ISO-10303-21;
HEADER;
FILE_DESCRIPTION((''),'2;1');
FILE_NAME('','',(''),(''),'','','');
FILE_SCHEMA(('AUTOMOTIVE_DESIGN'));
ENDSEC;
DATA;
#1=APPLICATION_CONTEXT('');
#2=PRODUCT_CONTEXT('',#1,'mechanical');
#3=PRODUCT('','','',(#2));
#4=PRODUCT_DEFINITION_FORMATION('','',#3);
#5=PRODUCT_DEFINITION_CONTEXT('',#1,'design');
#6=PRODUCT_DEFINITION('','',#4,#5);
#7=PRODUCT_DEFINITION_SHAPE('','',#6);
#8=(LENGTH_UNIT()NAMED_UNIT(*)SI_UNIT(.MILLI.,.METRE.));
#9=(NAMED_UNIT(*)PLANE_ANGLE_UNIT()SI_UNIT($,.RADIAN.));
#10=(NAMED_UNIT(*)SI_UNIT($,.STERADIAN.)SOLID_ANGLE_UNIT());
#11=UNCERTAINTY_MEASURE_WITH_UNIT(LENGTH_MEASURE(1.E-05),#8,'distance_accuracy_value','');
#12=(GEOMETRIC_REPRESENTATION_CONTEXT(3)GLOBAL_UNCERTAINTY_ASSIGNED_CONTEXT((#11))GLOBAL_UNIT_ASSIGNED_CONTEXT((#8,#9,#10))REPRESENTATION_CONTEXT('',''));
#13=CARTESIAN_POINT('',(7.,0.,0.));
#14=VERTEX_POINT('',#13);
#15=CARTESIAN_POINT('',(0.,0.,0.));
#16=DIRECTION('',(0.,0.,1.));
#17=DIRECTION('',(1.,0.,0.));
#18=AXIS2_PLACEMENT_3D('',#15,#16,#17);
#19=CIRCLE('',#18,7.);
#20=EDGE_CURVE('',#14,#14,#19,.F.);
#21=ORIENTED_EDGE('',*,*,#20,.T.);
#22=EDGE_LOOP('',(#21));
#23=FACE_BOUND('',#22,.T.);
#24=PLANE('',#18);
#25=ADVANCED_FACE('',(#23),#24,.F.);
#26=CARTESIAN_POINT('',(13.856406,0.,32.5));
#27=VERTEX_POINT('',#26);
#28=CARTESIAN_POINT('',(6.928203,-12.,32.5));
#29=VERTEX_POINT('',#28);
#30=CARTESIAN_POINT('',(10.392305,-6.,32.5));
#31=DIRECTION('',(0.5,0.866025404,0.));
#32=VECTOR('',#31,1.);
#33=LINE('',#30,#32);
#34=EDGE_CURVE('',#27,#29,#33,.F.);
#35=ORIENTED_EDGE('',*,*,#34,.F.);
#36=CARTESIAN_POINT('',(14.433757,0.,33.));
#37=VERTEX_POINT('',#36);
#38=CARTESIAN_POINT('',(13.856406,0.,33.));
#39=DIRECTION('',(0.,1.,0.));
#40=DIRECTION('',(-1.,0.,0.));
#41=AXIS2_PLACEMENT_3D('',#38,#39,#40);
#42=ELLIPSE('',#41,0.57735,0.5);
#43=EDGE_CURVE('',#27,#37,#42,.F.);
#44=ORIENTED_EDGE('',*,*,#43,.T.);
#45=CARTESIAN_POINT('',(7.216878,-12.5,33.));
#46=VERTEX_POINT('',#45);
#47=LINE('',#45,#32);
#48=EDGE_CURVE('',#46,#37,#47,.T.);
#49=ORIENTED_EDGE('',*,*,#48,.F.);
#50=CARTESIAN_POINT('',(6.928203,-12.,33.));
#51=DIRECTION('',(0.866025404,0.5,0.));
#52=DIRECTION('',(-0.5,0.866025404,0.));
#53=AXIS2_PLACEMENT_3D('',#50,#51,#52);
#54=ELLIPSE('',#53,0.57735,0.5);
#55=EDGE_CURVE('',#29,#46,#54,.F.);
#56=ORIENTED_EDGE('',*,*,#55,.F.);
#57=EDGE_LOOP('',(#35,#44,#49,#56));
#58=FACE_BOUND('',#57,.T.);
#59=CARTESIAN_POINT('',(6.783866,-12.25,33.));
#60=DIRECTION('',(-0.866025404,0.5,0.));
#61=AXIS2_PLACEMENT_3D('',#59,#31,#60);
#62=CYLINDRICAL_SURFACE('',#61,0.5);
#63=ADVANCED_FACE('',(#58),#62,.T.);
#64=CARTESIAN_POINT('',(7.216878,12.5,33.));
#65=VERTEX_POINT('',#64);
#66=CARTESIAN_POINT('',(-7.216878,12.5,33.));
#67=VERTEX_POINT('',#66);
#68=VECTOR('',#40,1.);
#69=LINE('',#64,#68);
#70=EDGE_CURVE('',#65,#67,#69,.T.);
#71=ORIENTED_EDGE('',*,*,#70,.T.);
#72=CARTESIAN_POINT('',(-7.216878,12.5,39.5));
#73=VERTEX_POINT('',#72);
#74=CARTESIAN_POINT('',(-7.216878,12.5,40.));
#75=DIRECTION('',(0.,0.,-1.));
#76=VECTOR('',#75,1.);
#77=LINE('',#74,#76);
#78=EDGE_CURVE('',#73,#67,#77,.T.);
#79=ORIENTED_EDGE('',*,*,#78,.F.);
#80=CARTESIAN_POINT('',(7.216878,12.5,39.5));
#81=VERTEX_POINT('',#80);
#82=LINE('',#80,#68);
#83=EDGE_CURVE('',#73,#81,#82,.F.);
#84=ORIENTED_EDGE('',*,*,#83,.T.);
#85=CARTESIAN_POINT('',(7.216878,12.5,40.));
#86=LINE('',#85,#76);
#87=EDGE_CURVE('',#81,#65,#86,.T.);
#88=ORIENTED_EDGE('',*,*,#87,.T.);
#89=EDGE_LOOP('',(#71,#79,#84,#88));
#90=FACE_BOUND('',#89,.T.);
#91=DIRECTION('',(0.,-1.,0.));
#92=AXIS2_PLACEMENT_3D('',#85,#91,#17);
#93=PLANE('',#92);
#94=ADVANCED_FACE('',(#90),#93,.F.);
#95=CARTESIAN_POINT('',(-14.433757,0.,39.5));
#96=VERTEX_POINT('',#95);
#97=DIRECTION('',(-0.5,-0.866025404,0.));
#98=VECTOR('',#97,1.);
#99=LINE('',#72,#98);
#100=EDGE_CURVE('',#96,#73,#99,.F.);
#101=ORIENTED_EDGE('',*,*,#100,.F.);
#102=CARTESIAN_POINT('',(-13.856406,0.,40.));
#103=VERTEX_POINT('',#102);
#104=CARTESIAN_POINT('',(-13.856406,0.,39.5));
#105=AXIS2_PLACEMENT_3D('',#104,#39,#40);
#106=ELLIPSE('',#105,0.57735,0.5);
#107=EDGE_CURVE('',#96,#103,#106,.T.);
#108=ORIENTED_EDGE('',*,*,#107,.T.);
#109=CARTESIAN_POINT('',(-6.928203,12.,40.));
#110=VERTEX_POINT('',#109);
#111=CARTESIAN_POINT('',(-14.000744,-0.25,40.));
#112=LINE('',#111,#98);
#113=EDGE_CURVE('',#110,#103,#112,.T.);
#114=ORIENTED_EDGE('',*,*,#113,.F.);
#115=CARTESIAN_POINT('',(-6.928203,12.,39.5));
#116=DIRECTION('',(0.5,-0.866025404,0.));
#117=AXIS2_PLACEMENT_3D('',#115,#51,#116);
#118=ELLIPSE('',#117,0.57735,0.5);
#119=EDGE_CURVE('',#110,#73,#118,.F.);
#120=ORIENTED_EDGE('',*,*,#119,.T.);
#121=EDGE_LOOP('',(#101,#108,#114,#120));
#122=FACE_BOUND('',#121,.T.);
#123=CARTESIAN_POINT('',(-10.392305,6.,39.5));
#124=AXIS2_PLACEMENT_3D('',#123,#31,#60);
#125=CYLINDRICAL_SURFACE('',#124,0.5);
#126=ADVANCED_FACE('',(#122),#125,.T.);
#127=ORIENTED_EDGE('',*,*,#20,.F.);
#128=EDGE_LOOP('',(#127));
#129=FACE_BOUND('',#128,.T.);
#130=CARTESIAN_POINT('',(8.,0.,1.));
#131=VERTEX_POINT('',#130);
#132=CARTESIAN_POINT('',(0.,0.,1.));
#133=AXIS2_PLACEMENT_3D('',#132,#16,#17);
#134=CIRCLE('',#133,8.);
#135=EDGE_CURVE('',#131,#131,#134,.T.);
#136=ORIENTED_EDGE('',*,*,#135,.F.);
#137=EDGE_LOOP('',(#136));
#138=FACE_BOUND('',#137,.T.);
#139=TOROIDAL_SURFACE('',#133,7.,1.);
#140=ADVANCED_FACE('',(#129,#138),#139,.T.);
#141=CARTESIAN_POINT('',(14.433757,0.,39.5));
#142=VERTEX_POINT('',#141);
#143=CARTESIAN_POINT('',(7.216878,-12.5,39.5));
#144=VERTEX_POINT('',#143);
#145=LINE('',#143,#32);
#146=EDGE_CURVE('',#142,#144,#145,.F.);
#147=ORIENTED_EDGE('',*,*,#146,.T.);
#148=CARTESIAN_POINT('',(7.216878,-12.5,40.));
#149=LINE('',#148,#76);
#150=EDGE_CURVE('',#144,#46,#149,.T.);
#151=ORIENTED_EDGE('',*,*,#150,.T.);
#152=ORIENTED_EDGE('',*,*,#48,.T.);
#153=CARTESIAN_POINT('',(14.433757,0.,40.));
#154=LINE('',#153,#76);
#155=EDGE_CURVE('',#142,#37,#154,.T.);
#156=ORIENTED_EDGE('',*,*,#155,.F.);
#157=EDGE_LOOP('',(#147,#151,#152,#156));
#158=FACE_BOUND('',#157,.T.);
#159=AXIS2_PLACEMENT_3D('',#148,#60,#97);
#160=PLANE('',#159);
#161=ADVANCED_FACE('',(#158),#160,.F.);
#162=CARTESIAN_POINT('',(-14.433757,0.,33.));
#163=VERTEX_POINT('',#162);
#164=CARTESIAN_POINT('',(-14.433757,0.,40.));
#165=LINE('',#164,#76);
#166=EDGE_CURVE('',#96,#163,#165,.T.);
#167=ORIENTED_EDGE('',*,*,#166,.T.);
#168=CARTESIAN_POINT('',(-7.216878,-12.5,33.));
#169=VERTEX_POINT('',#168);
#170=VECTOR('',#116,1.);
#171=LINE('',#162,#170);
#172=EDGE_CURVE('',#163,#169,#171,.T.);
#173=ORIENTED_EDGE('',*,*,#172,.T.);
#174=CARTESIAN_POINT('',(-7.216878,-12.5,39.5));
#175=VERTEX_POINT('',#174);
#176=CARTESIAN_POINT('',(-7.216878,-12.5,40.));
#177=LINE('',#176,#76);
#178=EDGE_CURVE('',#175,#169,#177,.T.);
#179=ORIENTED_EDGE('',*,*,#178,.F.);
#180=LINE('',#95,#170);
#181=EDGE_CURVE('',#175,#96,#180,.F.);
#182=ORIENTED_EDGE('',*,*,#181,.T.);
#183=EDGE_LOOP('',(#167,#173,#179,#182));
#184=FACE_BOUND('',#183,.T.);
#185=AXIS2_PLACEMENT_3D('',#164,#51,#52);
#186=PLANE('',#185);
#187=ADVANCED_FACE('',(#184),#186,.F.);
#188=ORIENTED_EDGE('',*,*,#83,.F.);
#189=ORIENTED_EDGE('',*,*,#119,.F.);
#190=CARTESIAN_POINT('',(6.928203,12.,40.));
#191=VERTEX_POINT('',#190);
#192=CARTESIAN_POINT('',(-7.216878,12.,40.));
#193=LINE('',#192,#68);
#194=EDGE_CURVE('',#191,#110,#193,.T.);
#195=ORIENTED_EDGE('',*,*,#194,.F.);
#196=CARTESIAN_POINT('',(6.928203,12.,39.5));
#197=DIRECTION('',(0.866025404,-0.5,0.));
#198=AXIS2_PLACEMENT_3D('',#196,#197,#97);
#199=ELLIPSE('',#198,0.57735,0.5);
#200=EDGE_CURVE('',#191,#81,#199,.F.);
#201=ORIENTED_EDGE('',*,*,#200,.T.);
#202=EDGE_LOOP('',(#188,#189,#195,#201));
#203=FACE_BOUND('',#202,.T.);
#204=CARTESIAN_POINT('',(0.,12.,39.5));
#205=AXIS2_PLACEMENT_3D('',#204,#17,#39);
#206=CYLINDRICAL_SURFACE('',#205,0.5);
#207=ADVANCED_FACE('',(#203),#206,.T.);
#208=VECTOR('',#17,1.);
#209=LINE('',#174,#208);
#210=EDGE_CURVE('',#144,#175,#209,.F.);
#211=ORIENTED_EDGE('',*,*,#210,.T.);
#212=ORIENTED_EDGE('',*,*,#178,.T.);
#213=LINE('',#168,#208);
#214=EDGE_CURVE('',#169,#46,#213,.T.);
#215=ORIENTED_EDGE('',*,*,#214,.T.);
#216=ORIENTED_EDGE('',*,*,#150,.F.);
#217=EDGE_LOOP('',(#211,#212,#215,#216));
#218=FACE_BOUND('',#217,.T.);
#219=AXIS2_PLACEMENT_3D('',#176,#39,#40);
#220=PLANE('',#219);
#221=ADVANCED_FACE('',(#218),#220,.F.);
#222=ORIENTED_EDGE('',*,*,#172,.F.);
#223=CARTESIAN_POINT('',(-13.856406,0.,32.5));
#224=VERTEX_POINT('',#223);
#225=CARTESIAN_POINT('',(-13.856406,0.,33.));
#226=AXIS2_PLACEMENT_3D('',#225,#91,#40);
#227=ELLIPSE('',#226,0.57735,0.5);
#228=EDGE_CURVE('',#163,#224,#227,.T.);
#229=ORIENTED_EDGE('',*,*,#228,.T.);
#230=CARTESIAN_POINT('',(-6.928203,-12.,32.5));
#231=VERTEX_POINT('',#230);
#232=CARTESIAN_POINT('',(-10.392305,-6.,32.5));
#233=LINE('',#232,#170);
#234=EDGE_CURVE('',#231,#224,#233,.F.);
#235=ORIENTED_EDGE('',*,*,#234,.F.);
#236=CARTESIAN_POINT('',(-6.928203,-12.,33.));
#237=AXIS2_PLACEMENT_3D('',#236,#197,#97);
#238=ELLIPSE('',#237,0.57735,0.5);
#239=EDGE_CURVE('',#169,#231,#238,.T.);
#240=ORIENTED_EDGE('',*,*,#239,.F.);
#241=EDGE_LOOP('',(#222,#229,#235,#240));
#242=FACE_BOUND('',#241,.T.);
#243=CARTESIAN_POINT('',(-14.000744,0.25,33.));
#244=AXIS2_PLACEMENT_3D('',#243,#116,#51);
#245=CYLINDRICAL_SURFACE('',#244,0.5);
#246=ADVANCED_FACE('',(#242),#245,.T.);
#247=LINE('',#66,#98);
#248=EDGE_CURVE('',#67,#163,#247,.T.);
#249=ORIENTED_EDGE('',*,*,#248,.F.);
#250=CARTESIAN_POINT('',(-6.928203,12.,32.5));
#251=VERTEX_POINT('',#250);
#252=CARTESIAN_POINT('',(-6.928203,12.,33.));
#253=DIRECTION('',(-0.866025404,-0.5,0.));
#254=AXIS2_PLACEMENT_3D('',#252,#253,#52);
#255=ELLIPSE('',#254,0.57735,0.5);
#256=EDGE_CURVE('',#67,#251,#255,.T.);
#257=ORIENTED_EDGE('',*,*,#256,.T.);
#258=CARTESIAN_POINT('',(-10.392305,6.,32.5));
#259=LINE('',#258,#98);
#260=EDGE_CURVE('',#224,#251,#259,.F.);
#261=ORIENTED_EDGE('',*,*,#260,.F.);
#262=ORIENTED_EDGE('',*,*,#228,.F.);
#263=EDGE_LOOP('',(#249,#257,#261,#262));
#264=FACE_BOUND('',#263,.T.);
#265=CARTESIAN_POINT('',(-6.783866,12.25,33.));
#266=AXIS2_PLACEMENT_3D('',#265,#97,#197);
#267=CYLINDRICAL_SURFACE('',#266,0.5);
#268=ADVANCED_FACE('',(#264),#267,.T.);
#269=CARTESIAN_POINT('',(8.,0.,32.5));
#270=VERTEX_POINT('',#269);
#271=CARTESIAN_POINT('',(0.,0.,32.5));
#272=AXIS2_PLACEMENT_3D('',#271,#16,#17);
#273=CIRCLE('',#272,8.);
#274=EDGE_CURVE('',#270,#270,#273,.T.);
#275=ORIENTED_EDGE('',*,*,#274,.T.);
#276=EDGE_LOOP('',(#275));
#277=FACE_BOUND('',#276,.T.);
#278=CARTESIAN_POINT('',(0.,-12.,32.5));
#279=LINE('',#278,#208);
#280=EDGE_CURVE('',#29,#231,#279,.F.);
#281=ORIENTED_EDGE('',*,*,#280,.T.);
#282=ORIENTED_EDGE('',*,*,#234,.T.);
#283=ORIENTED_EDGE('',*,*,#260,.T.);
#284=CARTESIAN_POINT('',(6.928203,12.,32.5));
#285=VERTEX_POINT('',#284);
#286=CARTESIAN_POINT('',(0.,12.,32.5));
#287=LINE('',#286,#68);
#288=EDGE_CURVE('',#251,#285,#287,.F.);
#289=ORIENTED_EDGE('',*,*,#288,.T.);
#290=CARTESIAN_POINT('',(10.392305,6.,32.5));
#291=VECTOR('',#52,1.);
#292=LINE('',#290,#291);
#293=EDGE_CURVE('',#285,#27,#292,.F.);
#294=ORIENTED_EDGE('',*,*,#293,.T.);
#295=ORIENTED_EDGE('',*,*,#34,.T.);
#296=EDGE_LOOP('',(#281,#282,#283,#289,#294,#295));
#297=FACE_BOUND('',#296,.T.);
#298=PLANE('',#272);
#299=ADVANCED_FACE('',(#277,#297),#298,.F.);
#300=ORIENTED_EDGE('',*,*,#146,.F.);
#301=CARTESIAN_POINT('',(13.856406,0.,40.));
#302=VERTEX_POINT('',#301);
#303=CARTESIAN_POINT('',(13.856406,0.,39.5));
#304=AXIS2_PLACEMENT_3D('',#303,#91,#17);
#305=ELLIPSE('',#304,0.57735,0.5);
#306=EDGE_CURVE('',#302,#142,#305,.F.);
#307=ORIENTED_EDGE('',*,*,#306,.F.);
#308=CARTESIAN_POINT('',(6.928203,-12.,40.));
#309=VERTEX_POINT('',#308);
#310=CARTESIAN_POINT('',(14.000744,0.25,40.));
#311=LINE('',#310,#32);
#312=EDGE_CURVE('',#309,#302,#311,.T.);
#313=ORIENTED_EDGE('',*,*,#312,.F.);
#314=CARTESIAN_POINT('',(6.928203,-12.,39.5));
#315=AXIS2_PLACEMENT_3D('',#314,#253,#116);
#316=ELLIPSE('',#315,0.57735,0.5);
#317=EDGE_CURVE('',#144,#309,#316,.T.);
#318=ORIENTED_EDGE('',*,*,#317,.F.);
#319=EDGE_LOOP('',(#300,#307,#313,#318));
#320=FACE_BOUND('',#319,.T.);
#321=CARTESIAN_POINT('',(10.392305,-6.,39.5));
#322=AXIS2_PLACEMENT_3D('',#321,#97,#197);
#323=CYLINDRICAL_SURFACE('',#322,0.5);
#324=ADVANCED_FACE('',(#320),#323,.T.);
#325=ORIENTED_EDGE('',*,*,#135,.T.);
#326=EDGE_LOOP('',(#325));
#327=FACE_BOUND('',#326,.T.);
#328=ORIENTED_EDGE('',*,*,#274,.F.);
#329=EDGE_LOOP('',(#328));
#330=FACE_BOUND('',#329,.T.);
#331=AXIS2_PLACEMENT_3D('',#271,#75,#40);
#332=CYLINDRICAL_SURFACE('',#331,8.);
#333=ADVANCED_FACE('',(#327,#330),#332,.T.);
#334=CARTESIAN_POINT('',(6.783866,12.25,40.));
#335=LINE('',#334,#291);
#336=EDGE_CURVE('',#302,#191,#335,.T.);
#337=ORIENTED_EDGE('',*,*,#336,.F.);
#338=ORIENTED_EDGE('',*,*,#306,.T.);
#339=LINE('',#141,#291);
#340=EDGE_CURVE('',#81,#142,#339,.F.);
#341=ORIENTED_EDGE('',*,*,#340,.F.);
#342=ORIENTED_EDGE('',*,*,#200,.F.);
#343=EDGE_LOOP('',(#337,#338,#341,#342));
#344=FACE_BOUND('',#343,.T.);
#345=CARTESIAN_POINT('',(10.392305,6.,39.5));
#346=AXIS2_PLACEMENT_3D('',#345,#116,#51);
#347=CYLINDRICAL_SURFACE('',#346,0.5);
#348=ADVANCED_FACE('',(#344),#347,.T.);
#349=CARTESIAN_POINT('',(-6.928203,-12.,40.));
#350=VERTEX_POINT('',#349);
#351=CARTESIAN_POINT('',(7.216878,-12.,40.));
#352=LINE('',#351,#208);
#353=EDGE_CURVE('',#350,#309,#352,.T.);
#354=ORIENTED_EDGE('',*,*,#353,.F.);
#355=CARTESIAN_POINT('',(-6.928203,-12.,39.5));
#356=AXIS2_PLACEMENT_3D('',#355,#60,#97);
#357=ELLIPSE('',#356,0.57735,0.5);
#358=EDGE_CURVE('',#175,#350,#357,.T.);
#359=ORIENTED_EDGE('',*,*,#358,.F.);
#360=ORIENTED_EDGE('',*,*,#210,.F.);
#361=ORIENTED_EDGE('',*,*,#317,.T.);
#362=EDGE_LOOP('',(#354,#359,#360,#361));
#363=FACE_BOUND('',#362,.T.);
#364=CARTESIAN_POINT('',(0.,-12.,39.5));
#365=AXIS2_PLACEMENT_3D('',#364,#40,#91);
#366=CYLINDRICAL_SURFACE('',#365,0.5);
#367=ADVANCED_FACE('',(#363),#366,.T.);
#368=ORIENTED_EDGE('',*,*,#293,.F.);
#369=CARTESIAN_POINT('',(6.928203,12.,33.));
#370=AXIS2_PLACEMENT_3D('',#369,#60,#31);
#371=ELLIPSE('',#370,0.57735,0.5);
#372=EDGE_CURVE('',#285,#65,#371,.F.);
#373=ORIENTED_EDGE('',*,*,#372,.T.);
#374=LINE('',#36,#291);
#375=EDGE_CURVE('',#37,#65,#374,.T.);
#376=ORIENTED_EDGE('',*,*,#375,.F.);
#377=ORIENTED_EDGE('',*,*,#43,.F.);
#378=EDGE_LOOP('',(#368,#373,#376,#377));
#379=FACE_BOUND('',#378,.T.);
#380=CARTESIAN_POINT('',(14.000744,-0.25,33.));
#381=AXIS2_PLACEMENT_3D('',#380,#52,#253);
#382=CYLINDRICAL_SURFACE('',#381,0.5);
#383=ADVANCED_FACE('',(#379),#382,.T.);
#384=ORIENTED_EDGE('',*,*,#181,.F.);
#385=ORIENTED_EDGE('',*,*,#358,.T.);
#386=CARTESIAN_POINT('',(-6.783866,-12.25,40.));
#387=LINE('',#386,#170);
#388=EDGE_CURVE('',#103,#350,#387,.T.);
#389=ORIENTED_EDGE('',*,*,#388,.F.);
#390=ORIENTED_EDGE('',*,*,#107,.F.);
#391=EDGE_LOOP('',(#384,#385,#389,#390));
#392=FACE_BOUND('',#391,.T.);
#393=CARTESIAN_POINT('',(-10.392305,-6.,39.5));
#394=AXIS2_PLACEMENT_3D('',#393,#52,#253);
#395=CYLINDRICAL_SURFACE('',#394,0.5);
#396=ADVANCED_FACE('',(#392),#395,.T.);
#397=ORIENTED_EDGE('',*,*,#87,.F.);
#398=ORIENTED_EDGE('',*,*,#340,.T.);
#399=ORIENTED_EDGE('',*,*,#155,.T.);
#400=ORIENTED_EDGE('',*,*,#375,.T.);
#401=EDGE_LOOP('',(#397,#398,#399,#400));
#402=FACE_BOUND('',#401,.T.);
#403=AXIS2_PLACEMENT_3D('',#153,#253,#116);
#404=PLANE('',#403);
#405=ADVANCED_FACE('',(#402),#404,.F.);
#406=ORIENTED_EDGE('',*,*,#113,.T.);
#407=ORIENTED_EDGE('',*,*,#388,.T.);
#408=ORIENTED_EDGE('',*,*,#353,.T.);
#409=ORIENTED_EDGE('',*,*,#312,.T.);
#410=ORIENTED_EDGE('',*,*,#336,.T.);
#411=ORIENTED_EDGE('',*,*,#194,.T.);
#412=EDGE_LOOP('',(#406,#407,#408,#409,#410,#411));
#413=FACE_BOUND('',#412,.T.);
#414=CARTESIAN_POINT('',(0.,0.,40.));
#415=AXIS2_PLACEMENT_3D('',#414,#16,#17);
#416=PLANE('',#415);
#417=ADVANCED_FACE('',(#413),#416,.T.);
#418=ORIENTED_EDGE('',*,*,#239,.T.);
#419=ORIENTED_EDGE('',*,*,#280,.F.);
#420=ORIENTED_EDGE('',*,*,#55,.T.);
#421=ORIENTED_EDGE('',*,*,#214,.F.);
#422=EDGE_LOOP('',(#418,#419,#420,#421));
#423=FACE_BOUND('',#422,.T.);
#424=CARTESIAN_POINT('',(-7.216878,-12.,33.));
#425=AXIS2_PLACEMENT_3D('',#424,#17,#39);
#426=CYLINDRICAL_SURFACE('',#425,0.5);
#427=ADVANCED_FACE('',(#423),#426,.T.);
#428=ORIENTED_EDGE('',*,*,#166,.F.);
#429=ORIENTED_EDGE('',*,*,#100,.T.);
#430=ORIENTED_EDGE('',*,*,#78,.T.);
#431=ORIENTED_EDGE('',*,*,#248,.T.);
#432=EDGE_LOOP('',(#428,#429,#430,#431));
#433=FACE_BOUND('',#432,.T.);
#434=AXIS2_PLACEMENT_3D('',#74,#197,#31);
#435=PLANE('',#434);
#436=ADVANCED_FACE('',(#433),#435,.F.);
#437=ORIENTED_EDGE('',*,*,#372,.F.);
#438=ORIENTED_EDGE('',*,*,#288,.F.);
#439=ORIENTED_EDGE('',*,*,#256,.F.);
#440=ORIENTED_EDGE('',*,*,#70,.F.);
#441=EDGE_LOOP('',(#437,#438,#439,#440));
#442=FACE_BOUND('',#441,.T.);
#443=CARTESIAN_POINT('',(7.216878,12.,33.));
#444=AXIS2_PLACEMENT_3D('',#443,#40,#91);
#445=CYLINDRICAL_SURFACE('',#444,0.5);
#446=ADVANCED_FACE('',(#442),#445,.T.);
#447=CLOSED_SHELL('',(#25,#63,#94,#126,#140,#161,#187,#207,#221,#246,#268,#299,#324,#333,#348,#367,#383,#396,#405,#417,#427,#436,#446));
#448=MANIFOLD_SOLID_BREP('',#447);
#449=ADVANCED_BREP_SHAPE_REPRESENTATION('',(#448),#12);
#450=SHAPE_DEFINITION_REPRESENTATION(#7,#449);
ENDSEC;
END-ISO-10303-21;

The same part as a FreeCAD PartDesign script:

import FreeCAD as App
import Part
import Sketcher
from FreeCAD import Vector
Q = App.Units.Quantity


def edges_at(feature, points):
    """Names of the edges that pass closest to the given points."""
    edges = feature.Shape.Edges
    near = lambda p: min(range(len(edges)), key=lambda i: edges[i].distToShape(Part.Vertex(*p))[0])
    return sorted({f"Edge{near(p) + 1}" for p in points})

doc = App.newDocument("Part")
body = doc.addObject("PartDesign::Body", "Body")

# Sketch on XY plane
sketch1 = doc.addObject("Sketcher::SketchObject", "Sketch")
body.addObject(sketch1)
sketch1.AttachmentSupport = (doc.XY_Plane, [""])
sketch1.MapMode = "FlatFace"
sketch1.addGeometry(Part.Circle(Vector(0, 0, 0), Vector(0, 0, 1), 8), False)
sketch1.addConstraint(Sketcher.Constraint("Coincident", 0, 3, -1, 1))
sketch1.addConstraint(Sketcher.Constraint("Diameter", 0, Q("16 mm")))
pad1 = doc.addObject("PartDesign::Pad", "Pad")
body.addObject(pad1)
pad1.Profile = sketch1
pad1.Length = 32.5

# Sketch on XY plane
sketch2 = doc.addObject("Sketcher::SketchObject", "Sketch001")
body.addObject(sketch2)
sketch2.AttachmentSupport = (doc.XY_Plane, [""])
sketch2.MapMode = "FlatFace"
sketch2.AttachmentOffset = App.Placement(Vector(0, 0, 32.5), App.Rotation())
sketch2.addGeometry(Part.LineSegment(Vector(7, -12, 0), Vector(14, 0, 0)), False)
sketch2.addGeometry(Part.LineSegment(Vector(14, 0, 0), Vector(7, 12, 0)), False)
sketch2.addGeometry(Part.LineSegment(Vector(7, 12, 0), Vector(-7, 12, 0)), False)
sketch2.addGeometry(Part.LineSegment(Vector(-7, 12, 0), Vector(-14, 0, 0)), False)
sketch2.addGeometry(Part.LineSegment(Vector(-14, 0, 0), Vector(-7, -12, 0)), False)
sketch2.addGeometry(Part.LineSegment(Vector(-7, -12, 0), Vector(7, -12, 0)), False)
sketch2.addConstraint(Sketcher.Constraint("Coincident", 0, 2, 1, 1))
sketch2.addConstraint(Sketcher.Constraint("Coincident", 1, 2, 2, 1))
sketch2.addConstraint(Sketcher.Constraint("Coincident", 2, 2, 3, 1))
sketch2.addConstraint(Sketcher.Constraint("Coincident", 3, 2, 4, 1))
sketch2.addConstraint(Sketcher.Constraint("Coincident", 4, 2, 5, 1))
sketch2.addConstraint(Sketcher.Constraint("Coincident", 5, 2, 0, 1))
sketch2.addConstraint(Sketcher.Constraint("Horizontal", 2))
sketch2.addConstraint(Sketcher.Constraint("Horizontal", 5))
sketch2.addConstraint(Sketcher.Constraint("Symmetric", 0, 2, 3, 2, -1, 1))
sketch2.addConstraint(Sketcher.Constraint("Symmetric", 1, 2, 4, 2, -1, 1))
sketch2.addConstraint(Sketcher.Constraint("PointOnObject", 0, 2, -1))
sketch2.addConstraint(Sketcher.Constraint("Parallel", 0, 3))
sketch2.addConstraint(Sketcher.Constraint("Vertical", 2, 2, 4, 2))
sketch2.addConstraint(Sketcher.Constraint("Angle", 0, Q("60 deg")))
sketch2.addConstraint(Sketcher.Constraint("DistanceY", 4, 2, 2, 2, Q("25 mm")))
sketch2.addConstraint(Sketcher.Constraint("DistanceX", 2, 2, 2, 1, Q("14.433757 mm")))
pad2 = doc.addObject("PartDesign::Pad", "Pad001")
body.addObject(pad2)
pad2.Profile = sketch2
pad2.Length = 7.5
doc.recompute()

fillet = doc.addObject("PartDesign::Fillet", "Fillet")
body.addObject(fillet)
fillet.Base = (pad2, edges_at(pad2, [(-8, 0, 0)]))
fillet.Radius = 1
doc.recompute()

fillet2 = doc.addObject("PartDesign::Fillet", "Fillet001")
body.addObject(fillet2)
fillet2.Base = (fillet, edges_at(fillet, [
    (0, -12.5, 32.5),
    (10.825, -6.25, 32.5),
    (10.825, 6.25, 32.5),
    (0, 12.5, 32.5),
    (-10.825, 6.25, 32.5),
    (-10.825, -6.25, 32.5),
    (0, -12.5, 40),
    (10.825, -6.25, 40),
    (10.825, 6.25, 40),
    (0, 12.5, 40),
    (-10.825, 6.25, 40),
    (-10.825, -6.25, 40),
]))
fillet2.Radius = 0.5

doc.recompute()
